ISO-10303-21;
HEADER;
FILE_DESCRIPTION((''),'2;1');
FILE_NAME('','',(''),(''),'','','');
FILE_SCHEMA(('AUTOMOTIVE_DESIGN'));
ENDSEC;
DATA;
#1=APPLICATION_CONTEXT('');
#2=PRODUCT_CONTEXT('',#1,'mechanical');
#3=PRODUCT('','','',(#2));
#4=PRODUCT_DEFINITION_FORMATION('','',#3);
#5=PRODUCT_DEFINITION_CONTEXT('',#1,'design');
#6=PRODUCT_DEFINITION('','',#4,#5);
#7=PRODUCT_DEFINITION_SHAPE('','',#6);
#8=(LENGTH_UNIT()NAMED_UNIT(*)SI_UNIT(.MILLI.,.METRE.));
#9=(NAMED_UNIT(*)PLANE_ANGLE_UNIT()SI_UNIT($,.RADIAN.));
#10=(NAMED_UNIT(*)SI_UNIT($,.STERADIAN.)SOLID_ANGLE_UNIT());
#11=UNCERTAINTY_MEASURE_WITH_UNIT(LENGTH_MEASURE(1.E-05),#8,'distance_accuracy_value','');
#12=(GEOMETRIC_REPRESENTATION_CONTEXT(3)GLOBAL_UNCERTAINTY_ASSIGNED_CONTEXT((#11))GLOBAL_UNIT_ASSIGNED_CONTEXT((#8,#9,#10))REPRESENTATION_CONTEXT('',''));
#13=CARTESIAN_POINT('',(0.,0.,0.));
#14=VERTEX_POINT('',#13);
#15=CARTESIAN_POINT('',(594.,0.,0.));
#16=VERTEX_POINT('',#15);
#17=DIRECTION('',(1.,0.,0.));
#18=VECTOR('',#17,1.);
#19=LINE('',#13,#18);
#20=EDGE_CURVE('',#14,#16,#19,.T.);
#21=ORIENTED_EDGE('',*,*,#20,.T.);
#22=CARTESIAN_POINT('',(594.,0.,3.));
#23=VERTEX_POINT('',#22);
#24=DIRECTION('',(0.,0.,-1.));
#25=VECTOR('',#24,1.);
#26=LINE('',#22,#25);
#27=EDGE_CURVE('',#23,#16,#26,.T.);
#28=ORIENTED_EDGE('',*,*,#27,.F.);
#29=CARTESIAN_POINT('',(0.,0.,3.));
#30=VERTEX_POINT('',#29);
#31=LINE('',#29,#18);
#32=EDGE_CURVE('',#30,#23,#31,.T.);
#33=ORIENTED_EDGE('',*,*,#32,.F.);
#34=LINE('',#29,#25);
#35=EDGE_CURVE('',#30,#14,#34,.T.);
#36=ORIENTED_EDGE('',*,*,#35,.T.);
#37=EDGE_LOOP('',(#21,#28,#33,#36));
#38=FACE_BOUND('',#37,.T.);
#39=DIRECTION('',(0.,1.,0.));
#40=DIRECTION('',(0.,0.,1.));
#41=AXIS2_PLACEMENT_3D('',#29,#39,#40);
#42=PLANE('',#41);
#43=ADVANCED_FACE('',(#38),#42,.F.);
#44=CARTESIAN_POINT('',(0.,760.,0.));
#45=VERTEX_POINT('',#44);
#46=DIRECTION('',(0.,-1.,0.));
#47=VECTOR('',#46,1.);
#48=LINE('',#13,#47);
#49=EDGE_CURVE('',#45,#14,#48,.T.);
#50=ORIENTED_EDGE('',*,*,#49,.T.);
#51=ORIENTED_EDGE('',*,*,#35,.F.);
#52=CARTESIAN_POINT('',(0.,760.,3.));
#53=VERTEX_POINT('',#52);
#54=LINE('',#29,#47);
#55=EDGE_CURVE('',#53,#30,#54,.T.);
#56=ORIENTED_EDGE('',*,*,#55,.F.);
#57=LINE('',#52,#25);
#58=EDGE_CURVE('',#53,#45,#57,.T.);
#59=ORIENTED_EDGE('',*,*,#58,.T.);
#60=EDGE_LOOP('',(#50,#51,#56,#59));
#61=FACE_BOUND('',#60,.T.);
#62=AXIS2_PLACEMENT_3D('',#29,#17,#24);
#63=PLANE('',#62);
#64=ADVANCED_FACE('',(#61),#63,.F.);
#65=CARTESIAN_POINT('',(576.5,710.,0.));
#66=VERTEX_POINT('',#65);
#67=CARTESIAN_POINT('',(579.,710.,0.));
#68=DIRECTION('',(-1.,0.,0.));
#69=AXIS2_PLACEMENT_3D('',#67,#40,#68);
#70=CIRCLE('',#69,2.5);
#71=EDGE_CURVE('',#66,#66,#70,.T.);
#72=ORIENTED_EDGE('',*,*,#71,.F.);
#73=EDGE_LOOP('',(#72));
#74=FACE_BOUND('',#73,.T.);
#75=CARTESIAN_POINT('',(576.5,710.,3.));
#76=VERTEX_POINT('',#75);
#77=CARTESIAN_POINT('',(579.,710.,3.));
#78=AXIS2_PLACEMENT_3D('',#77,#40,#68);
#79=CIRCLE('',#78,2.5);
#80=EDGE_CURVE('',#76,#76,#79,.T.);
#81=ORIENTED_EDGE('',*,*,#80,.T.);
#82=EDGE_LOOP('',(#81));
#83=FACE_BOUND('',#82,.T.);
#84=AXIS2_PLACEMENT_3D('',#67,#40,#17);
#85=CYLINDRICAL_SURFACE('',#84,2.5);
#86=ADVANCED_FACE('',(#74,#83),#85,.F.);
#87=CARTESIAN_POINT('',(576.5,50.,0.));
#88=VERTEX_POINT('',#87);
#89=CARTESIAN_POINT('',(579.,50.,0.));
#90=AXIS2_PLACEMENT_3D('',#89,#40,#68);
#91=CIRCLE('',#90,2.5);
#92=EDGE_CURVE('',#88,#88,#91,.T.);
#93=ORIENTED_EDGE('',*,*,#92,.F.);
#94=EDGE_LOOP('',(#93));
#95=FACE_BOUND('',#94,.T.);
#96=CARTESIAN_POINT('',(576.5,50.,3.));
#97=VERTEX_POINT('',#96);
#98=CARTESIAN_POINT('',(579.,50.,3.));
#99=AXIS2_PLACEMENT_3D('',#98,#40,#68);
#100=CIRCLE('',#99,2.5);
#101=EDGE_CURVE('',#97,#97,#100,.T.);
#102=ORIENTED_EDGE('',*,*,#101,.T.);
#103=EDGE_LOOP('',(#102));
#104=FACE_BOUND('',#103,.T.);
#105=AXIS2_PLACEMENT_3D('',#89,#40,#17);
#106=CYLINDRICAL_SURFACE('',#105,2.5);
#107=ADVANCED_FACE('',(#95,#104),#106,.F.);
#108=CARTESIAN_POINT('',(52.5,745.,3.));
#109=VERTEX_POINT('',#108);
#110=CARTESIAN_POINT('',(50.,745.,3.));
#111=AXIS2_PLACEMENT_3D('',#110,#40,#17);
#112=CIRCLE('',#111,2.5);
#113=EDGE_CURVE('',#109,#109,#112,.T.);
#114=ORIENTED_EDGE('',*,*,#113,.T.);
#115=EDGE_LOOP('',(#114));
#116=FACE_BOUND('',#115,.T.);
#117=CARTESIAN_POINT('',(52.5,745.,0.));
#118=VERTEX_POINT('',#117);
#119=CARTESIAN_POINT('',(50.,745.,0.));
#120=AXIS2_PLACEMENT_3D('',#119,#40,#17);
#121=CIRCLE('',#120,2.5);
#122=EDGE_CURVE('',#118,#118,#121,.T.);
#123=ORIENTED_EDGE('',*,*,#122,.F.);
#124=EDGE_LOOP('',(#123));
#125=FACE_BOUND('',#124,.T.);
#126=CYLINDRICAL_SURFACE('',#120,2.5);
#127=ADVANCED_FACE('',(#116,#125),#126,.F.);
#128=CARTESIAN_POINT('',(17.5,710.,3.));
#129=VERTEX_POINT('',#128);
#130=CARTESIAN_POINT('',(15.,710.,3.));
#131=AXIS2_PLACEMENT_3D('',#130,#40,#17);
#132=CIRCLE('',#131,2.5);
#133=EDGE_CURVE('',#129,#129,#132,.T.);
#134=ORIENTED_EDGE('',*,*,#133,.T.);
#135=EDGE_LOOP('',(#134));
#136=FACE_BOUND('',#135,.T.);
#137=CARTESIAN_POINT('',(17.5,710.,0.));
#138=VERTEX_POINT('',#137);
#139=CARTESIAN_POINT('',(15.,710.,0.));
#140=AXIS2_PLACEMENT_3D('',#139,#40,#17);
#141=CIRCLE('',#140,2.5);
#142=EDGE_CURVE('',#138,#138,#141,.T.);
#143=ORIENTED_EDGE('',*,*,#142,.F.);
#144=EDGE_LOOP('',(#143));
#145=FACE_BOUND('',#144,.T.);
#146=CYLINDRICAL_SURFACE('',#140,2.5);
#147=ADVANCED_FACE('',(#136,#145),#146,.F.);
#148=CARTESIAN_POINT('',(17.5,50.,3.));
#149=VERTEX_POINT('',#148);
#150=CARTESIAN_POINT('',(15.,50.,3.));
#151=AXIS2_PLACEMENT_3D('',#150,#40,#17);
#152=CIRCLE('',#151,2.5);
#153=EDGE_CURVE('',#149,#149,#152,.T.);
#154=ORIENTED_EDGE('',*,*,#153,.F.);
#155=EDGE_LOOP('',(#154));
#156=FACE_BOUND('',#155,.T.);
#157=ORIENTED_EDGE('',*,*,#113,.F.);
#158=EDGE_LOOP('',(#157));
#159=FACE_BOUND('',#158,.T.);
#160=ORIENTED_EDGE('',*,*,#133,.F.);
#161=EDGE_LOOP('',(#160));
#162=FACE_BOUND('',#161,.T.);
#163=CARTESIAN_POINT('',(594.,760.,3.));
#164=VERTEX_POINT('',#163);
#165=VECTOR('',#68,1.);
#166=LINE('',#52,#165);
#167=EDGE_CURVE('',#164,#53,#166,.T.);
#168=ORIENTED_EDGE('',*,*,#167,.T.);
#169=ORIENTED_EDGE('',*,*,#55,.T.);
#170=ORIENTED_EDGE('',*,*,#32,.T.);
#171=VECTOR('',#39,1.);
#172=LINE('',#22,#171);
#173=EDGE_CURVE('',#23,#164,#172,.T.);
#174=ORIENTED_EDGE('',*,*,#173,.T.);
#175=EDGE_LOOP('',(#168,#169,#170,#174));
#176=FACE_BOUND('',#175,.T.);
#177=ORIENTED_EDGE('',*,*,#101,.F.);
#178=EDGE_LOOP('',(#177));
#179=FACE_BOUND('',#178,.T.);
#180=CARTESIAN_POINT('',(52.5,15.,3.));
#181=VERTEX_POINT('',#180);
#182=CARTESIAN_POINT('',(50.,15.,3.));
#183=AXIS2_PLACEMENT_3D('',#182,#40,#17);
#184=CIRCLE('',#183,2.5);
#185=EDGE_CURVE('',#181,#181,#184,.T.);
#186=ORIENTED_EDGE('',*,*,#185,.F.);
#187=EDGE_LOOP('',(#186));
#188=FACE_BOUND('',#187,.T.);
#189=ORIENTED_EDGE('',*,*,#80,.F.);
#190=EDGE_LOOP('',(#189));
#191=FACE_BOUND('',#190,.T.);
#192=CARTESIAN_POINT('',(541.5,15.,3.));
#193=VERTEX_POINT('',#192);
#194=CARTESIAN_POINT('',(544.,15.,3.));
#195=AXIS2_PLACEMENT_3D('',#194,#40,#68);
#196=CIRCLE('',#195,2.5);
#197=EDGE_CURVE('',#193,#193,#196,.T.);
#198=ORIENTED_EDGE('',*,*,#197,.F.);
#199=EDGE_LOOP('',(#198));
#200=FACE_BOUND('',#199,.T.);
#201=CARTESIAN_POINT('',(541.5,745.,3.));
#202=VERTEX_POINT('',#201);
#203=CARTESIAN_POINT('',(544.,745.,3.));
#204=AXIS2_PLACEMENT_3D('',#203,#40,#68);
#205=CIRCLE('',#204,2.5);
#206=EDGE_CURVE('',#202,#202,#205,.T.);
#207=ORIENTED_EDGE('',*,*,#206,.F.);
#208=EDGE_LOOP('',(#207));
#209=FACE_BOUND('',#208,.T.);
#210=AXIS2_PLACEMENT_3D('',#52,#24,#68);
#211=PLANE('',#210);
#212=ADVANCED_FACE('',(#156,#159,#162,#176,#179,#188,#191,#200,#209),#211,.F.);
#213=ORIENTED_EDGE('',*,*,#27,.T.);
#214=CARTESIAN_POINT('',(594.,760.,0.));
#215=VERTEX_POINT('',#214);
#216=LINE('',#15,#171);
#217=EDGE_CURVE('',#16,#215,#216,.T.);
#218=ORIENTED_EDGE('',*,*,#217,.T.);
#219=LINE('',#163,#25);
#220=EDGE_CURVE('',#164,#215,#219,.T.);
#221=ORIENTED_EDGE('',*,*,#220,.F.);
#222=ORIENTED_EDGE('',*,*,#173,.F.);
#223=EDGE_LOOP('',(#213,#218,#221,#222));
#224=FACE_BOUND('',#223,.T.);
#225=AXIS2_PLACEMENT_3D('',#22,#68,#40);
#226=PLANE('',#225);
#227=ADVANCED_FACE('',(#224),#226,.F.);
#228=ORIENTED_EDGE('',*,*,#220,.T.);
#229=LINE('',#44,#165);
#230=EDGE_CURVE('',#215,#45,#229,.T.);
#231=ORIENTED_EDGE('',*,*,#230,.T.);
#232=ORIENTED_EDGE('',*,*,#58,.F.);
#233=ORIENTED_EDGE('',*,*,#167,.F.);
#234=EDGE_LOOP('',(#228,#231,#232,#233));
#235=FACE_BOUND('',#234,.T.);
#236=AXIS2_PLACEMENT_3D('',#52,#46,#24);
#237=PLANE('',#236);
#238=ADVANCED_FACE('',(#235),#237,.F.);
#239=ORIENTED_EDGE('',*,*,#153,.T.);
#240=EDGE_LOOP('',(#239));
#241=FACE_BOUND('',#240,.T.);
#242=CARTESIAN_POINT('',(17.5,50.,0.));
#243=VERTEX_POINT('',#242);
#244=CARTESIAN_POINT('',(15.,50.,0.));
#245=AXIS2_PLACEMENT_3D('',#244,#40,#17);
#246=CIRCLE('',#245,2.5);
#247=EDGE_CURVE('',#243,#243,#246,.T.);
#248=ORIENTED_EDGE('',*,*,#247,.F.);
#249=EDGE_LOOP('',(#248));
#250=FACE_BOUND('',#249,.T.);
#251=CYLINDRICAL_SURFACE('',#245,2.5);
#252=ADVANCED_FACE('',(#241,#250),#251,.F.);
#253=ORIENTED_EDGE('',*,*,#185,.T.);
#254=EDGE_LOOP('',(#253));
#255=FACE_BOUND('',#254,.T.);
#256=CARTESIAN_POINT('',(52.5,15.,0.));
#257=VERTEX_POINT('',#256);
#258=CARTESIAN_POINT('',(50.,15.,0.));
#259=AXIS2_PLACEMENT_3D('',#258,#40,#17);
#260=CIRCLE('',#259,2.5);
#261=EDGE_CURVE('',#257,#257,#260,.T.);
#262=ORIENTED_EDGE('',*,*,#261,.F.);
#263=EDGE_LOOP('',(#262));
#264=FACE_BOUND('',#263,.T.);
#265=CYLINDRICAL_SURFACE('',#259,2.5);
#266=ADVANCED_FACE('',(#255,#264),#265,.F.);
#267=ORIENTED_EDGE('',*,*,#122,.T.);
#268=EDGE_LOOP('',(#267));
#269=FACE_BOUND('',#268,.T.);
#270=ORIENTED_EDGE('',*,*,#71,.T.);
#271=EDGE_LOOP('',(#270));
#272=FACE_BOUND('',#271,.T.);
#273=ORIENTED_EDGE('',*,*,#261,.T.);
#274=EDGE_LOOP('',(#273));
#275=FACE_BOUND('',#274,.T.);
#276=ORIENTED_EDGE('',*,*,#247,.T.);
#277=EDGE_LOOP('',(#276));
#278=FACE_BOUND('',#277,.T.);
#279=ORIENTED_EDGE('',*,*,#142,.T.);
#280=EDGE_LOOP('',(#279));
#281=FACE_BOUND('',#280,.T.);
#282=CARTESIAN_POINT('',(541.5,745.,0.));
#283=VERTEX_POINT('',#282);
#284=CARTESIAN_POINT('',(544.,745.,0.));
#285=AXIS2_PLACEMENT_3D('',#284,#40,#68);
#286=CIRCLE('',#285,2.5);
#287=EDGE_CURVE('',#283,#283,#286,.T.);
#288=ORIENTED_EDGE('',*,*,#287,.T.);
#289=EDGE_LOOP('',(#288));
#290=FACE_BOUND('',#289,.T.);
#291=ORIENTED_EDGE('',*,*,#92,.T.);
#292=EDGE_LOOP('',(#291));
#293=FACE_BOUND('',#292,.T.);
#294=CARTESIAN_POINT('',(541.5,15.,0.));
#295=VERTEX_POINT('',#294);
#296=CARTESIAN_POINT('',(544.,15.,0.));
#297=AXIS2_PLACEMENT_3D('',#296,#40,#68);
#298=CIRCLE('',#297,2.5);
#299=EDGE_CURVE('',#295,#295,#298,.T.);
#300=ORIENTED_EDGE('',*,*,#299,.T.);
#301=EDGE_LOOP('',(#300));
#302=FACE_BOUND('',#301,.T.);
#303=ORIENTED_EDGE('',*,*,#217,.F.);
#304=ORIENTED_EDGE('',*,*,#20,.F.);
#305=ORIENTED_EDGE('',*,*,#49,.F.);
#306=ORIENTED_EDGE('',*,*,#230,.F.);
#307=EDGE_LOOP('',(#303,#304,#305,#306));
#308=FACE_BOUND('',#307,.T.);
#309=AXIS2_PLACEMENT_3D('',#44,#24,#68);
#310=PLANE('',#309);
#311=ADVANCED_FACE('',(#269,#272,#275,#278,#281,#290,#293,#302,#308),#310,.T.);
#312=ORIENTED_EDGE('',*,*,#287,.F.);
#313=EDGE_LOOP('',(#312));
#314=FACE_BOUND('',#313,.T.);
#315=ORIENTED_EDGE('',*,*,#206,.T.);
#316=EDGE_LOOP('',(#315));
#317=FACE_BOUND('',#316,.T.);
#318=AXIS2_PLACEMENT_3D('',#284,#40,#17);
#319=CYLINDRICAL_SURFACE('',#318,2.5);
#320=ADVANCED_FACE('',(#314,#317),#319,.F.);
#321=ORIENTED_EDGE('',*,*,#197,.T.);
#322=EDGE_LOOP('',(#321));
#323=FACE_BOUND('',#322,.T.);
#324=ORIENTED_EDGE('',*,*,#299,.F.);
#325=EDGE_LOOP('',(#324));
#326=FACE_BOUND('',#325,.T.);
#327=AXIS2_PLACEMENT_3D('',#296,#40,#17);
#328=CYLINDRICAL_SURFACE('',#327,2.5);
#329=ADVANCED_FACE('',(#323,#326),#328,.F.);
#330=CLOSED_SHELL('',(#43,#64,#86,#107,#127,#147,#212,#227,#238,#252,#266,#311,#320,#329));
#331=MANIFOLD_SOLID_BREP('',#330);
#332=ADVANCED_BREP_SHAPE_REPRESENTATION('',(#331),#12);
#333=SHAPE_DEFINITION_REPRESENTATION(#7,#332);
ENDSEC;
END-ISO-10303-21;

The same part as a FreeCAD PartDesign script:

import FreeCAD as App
import Part
import Sketcher

V = App.Vector
Q = App.Units.Quantity

doc = App.newDocument("Part")
body = doc.addObject("PartDesign::Body", "Body")

# Sketch on XY plane
sketch1 = body.newObject("Sketcher::SketchObject", "Sketch")
sketch1.AttachmentSupport = (doc.getObject("XY_Plane"), [""])
sketch1.MapMode = "FlatFace"
sketch1.addGeometry(Part.LineSegment(V(0, 760, 0), V(0, 0, 0)), False)
sketch1.addGeometry(Part.LineSegment(V(0, 0, 0), V(594, 0, 0)), False)
sketch1.addGeometry(Part.LineSegment(V(594, 0, 0), V(594, 760, 0)), False)
sketch1.addGeometry(Part.LineSegment(V(594, 760, 0), V(0, 760, 0)), False)
sketch1.addConstraint(Sketcher.Constraint("Coincident", 0, 2, 1, 1))
sketch1.addConstraint(Sketcher.Constraint("Coincident", 1, 2, 2, 1))
sketch1.addConstraint(Sketcher.Constraint("Coincident", 2, 2, 3, 1))
sketch1.addConstraint(Sketcher.Constraint("Coincident", 3, 2, 0, 1))
sketch1.addConstraint(Sketcher.Constraint("Vertical", 0))
sketch1.addConstraint(Sketcher.Constraint("Horizontal", 1))
sketch1.addConstraint(Sketcher.Constraint("Vertical", 2))
sketch1.addConstraint(Sketcher.Constraint("Horizontal", 3))
sketch1.addConstraint(Sketcher.Constraint("Coincident", 0, 2, -1, 1))
sketch1.addConstraint(Sketcher.Constraint("DistanceX", 1, 1, 1, 2, Q("594 mm")))
sketch1.addConstraint(Sketcher.Constraint("DistanceY", 0, 2, 0, 1, Q("760 mm")))
pad1 = body.newObject("PartDesign::Pad", "Pad")
pad1.Profile = sketch1
pad1.Length = 3

# Sketch on XY plane
sketch2 = body.newObject("Sketcher::SketchObject", "Sketch001")
sketch2.AttachmentSupport = (doc.getObject("XY_Plane"), [""])
sketch2.MapMode = "FlatFace"
sketch2.AttachmentOffset = App.Placement(V(0, 0, 3), App.Rotation())
sketch2.addGeometry(Part.Circle(V(50, 745, 0), V(0, 0, 1), 2.5), False)
sketch2.addGeometry(Part.Circle(V(15, 710, 0), V(0, 0, 1), 2.5), False)
sketch2.addGeometry(Part.Circle(V(15, 50, 0), V(0, 0, 1), 2.5), False)
sketch2.addGeometry(Part.Circle(V(50, 15, 0), V(0, 0, 1), 2.5), False)
sketch2.addGeometry(Part.Circle(V(544, 15, 0), V(0, 0, 1), 2.5), False)
sketch2.addGeometry(Part.Circle(V(579, 50, 0), V(0, 0, 1), 2.5), False)
sketch2.addGeometry(Part.Circle(V(579, 710, 0), V(0, 0, 1), 2.5), False)
sketch2.addGeometry(Part.Circle(V(544, 745, 0), V(0, 0, 1), 2.5), False)
sketch2.addConstraint(Sketcher.Constraint("Equal", 0, 1))
sketch2.addConstraint(Sketcher.Constraint("Equal", 1, 2))
sketch2.addConstraint(Sketcher.Constraint("Equal", 2, 3))
sketch2.addConstraint(Sketcher.Constraint("Equal", 3, 4))
sketch2.addConstraint(Sketcher.Constraint("Equal", 4, 5))
sketch2.addConstraint(Sketcher.Constraint("Equal", 5, 6))
sketch2.addConstraint(Sketcher.Constraint("Equal", 6, 7))
sketch2.addConstraint(Sketcher.Constraint("Horizontal", 3, 3, 4, 3))
sketch2.addConstraint(Sketcher.Constraint("Horizontal", 2, 3, 5, 3))
sketch2.addConstraint(Sketcher.Constraint("Horizontal", 1, 3, 6, 3))
sketch2.addConstraint(Sketcher.Constraint("Horizontal", 0, 3, 7, 3))
sketch2.addConstraint(Sketcher.Constraint("Vertical", 1, 3, 2, 3))
sketch2.addConstraint(Sketcher.Constraint("Vertical", 0, 3, 3, 3))
sketch2.addConstraint(Sketcher.Constraint("Vertical", 5, 3, 6, 3))
sketch2.addConstraint(Sketcher.Constraint("Vertical", 4, 3, 7, 3))
sketch2.addConstraint(Sketcher.Constraint("Diameter", 0, Q("5 mm")))
sketch2.addConstraint(Sketcher.Constraint("DistanceX", -1, 1, 0, 3, Q("50 mm")))
sketch2.addConstraint(Sketcher.Constraint("DistanceY", -1, 1, 0, 3, Q("745 mm")))
sketch2.addConstraint(Sketcher.Constraint("DistanceX", -1, 1, 1, 3, Q("15 mm")))
sketch2.addConstraint(Sketcher.Constraint("DistanceY", -1, 1, 1, 3, Q("710 mm")))
sketch2.addConstraint(Sketcher.Constraint("DistanceY", -1, 1, 2, 3, Q("50 mm")))
sketch2.addConstraint(Sketcher.Constraint("DistanceY", -1, 1, 3, 3, Q("15 mm")))
sketch2.addConstraint(Sketcher.Constraint("DistanceX", -1, 1, 4, 3, Q("544 mm")))
sketch2.addConstraint(Sketcher.Constraint("DistanceX", -1, 1, 5, 3, Q("579 mm")))
pocket1 = body.newObject("PartDesign::Pocket", "Pocket")
pocket1.Profile = sketch2
pocket1.Length = 3

doc.recompute()
